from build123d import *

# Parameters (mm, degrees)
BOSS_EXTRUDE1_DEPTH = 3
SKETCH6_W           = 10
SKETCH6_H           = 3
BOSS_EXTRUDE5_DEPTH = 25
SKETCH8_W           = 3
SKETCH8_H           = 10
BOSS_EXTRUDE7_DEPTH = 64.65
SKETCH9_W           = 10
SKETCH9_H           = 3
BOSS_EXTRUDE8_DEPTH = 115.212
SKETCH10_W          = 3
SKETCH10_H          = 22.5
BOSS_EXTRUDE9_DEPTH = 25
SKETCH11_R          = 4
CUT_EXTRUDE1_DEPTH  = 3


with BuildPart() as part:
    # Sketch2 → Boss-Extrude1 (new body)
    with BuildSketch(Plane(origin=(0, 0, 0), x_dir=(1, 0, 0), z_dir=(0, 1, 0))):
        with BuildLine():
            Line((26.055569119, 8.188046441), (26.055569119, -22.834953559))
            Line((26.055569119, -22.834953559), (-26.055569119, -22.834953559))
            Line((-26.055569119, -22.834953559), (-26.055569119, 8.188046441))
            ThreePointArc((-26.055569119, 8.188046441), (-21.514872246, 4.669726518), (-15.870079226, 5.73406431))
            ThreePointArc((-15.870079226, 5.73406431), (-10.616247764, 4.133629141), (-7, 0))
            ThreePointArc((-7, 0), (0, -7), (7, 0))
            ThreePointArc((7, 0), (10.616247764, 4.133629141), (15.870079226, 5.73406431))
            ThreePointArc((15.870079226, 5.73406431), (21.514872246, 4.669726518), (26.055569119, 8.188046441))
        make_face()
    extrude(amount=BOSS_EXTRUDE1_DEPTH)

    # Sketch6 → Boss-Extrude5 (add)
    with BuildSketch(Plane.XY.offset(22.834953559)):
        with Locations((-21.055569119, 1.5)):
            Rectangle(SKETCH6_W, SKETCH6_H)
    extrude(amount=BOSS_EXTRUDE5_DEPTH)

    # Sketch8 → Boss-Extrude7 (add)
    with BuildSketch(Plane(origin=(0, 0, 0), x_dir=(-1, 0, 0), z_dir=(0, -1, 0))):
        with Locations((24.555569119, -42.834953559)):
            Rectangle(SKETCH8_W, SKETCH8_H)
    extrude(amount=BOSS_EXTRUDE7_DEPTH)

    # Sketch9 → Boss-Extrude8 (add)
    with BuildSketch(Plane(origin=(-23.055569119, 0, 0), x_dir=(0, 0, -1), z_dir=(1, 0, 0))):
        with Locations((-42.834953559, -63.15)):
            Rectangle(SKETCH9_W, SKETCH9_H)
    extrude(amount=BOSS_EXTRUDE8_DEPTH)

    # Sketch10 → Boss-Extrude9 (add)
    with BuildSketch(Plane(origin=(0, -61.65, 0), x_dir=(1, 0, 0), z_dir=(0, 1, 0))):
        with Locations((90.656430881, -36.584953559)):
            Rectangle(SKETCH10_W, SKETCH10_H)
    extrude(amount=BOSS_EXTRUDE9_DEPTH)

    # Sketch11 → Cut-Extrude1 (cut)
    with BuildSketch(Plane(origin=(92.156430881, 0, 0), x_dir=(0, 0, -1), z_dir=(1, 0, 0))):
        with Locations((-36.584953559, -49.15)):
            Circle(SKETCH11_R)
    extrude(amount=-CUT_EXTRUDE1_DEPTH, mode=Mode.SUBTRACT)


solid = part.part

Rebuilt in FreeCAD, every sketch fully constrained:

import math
import FreeCAD as App
import Part
import Sketcher
from FreeCAD import Vector
Q = App.Units.Quantity

doc = App.newDocument("Part")
params = doc.addObject("Spreadsheet::Sheet", "Params")
for row, (alias, value) in enumerate([
    ("sketch1_radius", "7 mm"),
    ("sketch1_radius2", "10 mm"),
    ("pad1_length", "3 mm"),
    ("sketch2_width", "10 mm"),
    ("sketch2_height", "3 mm"),
    ("pad2_length", "25 mm"),
    ("sketch3_width", "3 mm"),
    ("sketch3_height", "10 mm"),
    ("pad3_length", "64.65 mm"),
    ("sketch4_width", "3 mm"),
    ("sketch4_height", "10 mm"),
    ("pad4_length", "115.212 mm"),
    ("sketch5_width", "3 mm"),
    ("sketch5_height", "22.5 mm"),
    ("pad5_length", "25 mm"),
    ("sketch6_diameter", "8 mm"),
    ("pocket1_length", "3 mm"),
], start=1):
    params.set(f"A{row}", alias)
    params.set(f"B{row}", "=" + value)
    params.setAlias(f"B{row}", alias)

body = doc.addObject("PartDesign::Body", "Body")

# Sketch on XZ plane
sketch1 = doc.addObject("Sketcher::SketchObject", "Sketch")
body.addObject(sketch1)
sketch1.AttachmentSupport = (doc.XZ_Plane, [""])
sketch1.MapMode = "FlatFace"
sketch1.addGeometry([
    Part.LineSegment(Vector(26, 23, 0), Vector(26, -8, 0)),  # 0
    Part.ArcOfCircle(Part.Circle(Vector(20, -11, 0), Vector(0, 0, 1), 7), math.radians(28), math.radians(125)),  # 1
    Part.ArcOfCircle(Part.Circle(Vector(16, 4, 0), Vector(0, 0, 1), 10), math.radians(-155), math.radians(-91)),  # 2
    Part.ArcOfCircle(Part.Circle(Vector(0, 0, 0), Vector(0, 0, 1), 7), math.radians(0), math.radians(180)),  # 3
    Part.ArcOfCircle(Part.Circle(Vector(-16, 4, 0), Vector(0, 0, 1), 10), math.radians(-89), math.radians(-25)),  # 4
    Part.ArcOfCircle(Part.Circle(Vector(-20, -11, 0), Vector(0, 0, 1), 7), math.radians(55), math.radians(152)),  # 5
    Part.LineSegment(Vector(-26, -8, 0), Vector(-26, 23, 0)),  # 6
    Part.LineSegment(Vector(-26, 23, 0), Vector(26, 23, 0)),  # 7
], False)
sketch1.addConstraint([
    Sketcher.Constraint("Coincident", 0, 2, 1, 1),
    Sketcher.Constraint("Coincident", 1, 2, 2, 2),
    Sketcher.Constraint("Coincident", 2, 1, 3, 1),
    Sketcher.Constraint("Coincident", 3, 2, 4, 2),
    Sketcher.Constraint("Coincident", 4, 1, 5, 1),
    Sketcher.Constraint("Coincident", 5, 2, 6, 1),
    Sketcher.Constraint("Coincident", 6, 2, 7, 1),
    Sketcher.Constraint("Coincident", 7, 2, 0, 1),
    Sketcher.Constraint("Vertical", 0),
    Sketcher.Constraint("Vertical", 6),
    Sketcher.Constraint("Horizontal", 7),
    Sketcher.Constraint("Coincident", 3, 3, -1, 1),
    Sketcher.Constraint("Equal", 1, 3),
    Sketcher.Constraint("Equal", 2, 4),
    Sketcher.Constraint("Equal", 3, 5),
    Sketcher.Constraint("Symmetric", 2, 3, 4, 3, -2),
    Sketcher.Constraint("Symmetric", 1, 3, 5, 3, -2),
    Sketcher.Constraint("PointOnObject", 2, 1, -1),
    Sketcher.Constraint("Horizontal", 0, 2, 5, 2),
    Sketcher.Constraint("Radius", 1, Q("7 mm")),
    Sketcher.Constraint("Radius", 2, Q("10 mm")),
    Sketcher.Constraint("DistanceY", 0, 2, 0, 1, Q("31.023 mm")),
    Sketcher.Constraint("DistanceY", 1, 3, -1, 1, Q("11.475 mm")),
    Sketcher.Constraint("DistanceX", 7, 1, 7, 2, Q("52.111138 mm")),
    Sketcher.Constraint("DistanceX", -1, 1, 1, 2, Q("15.870079 mm")),
    Sketcher.Constraint("DistanceX", 4, 3, 1, 3, Q("35.92044 mm")),
])
sketch1.setExpression("Constraints[19]", "Params.sketch1_radius")
sketch1.setExpression("Constraints[20]", "Params.sketch1_radius2")
pad1 = doc.addObject("PartDesign::Pad", "Pad")
body.addObject(pad1)
pad1.Profile = sketch1
pad1.setExpression("Length", "Params.pad1_length")
pad1.Reversed = True

# Sketch on XY plane
sketch2 = doc.addObject("Sketcher::SketchObject", "Sketch001")
body.addObject(sketch2)
sketch2.AttachmentSupport = (doc.XY_Plane, [""])
sketch2.MapMode = "FlatFace"
sketch2.AttachmentOffset = App.Placement(Vector(0, 0, 22.834954), App.Rotation())
sketch2.addGeometry([
    Part.LineSegment(Vector(-26.1, 3, 0), Vector(-26.1, 0, 0)),
    Part.LineSegment(Vector(-26.1, 0, 0), Vector(-16.1, 0, 0)),
    Part.LineSegment(Vector(-16.1, 0, 0), Vector(-16.1, 3, 0)),
    Part.LineSegment(Vector(-16.1, 3, 0), Vector(-26.1, 3, 0)),
], False)
sketch2.addConstraint([
    Sketcher.Constraint("Coincident", 0, 2, 1, 1),
    Sketcher.Constraint("Coincident", 1, 2, 2, 1),
    Sketcher.Constraint("Coincident", 2, 2, 3, 1),
    Sketcher.Constraint("Coincident", 3, 2, 0, 1),
    Sketcher.Constraint("Vertical", 0),
    Sketcher.Constraint("Horizontal", 1),
    Sketcher.Constraint("Vertical", 2),
    Sketcher.Constraint("Horizontal", 3),
    Sketcher.Constraint("PointOnObject", 0, 2, -1),
    Sketcher.Constraint("DistanceX", 1, 1, 1, 2, Q("10 mm")),
    Sketcher.Constraint("DistanceY", 0, 2, 0, 1, Q("3 mm")),
    Sketcher.Constraint("DistanceX", 0, 2, -1, 1, Q("26.055569 mm")),
])
sketch2.setExpression("Constraints[9]", "Params.sketch2_width")
sketch2.setExpression("Constraints[10]", "Params.sketch2_height")
pad2 = doc.addObject("PartDesign::Pad", "Pad001")
body.addObject(pad2)
pad2.Profile = sketch2
pad2.setExpression("Length", "Params.pad2_length")

# Sketch on XZ plane
sketch3 = doc.addObject("Sketcher::SketchObject", "Sketch002")
body.addObject(sketch3)
sketch3.AttachmentSupport = (doc.XZ_Plane, [""])
sketch3.MapMode = "FlatFace"
sketch3.addGeometry([
    Part.LineSegment(Vector(-23.1, 37.8, 0), Vector(-23.1, 47.8, 0)),
    Part.LineSegment(Vector(-23.1, 47.8, 0), Vector(-26.1, 47.8, 0)),
    Part.LineSegment(Vector(-26.1, 47.8, 0), Vector(-26.1, 37.8, 0)),
    Part.LineSegment(Vector(-26.1, 37.8, 0), Vector(-23.1, 37.8, 0)),
], False)
sketch3.addConstraint([
    Sketcher.Constraint("Coincident", 0, 2, 1, 1),
    Sketcher.Constraint("Coincident", 1, 2, 2, 1),
    Sketcher.Constraint("Coincident", 2, 2, 3, 1),
    Sketcher.Constraint("Coincident", 3, 2, 0, 1),
    Sketcher.Constraint("Vertical", 0),
    Sketcher.Constraint("Horizontal", 1),
    Sketcher.Constraint("Vertical", 2),
    Sketcher.Constraint("Horizontal", 3),
    Sketcher.Constraint("DistanceX", 1, 2, 1, 1, Q("3 mm")),
    Sketcher.Constraint("DistanceY", 0, 1, 0, 2, Q("10 mm")),
    Sketcher.Constraint("DistanceX", 0, 2, -1, 1, Q("23.055569 mm")),
    Sketcher.Constraint("DistanceY", -1, 1, 0, 2, Q("47.834954 mm")),
])
sketch3.setExpression("Constraints[8]", "Params.sketch3_width")
sketch3.setExpression("Constraints[9]", "Params.sketch3_height")
pad3 = doc.addObject("PartDesign::Pad", "Pad002")
body.addObject(pad3)
pad3.Profile = sketch3
pad3.setExpression("Length", "Params.pad3_length")

# Sketch on YZ plane
sketch4 = doc.addObject("Sketcher::SketchObject", "Sketch003")
body.addObject(sketch4)
sketch4.AttachmentSupport = (doc.YZ_Plane, [""])
sketch4.MapMode = "FlatFace"
sketch4.AttachmentOffset = App.Placement(Vector(0, 0, -23.055569), App.Rotation())
sketch4.addGeometry([
    Part.LineSegment(Vector(-61.6, 47.8, 0), Vector(-64.7, 47.8, 0)),
    Part.LineSegment(Vector(-64.7, 47.8, 0), Vector(-64.7, 37.8, 0)),
    Part.LineSegment(Vector(-64.7, 37.8, 0), Vector(-61.6, 37.8, 0)),
    Part.LineSegment(Vector(-61.6, 37.8, 0), Vector(-61.6, 47.8, 0)),
], False)
sketch4.addConstraint([
    Sketcher.Constraint("Coincident", 0, 2, 1, 1),
    Sketcher.Constraint("Coincident", 1, 2, 2, 1),
    Sketcher.Constraint("Coincident", 2, 2, 3, 1),
    Sketcher.Constraint("Coincident", 3, 2, 0, 1),
    Sketcher.Constraint("Horizontal", 0),
    Sketcher.Constraint("Vertical", 1),
    Sketcher.Constraint("Horizontal", 2),
    Sketcher.Constraint("Vertical", 3),
    Sketcher.Constraint("DistanceX", 0, 2, 0, 1, Q("3 mm")),
    Sketcher.Constraint("DistanceY", 1, 2, 1, 1, Q("10 mm")),
    Sketcher.Constraint("DistanceX", 0, 2, -1, 1, Q("64.65 mm")),
    Sketcher.Constraint("DistanceY", -1, 1, 0, 2, Q("47.834954 mm")),
])
sketch4.setExpression("Constraints[8]", "Params.sketch4_width")
sketch4.setExpression("Constraints[9]", "Params.sketch4_height")
pad4 = doc.addObject("PartDesign::Pad", "Pad003")
body.addObject(pad4)
pad4.Profile = sketch4
pad4.setExpression("Length", "Params.pad4_length")

# Sketch on XZ plane
sketch5 = doc.addObject("Sketcher::SketchObject", "Sketch004")
body.addObject(sketch5)
sketch5.AttachmentSupport = (doc.XZ_Plane, [""])
sketch5.MapMode = "FlatFace"
sketch5.AttachmentOffset = App.Placement(Vector(0, 0, 61.65), App.Rotation())
sketch5.addGeometry([
    Part.LineSegment(Vector(89.2, 25.3, 0), Vector(89.2, 47.8, 0)),
    Part.LineSegment(Vector(89.2, 47.8, 0), Vector(92.2, 47.8, 0)),
    Part.LineSegment(Vector(92.2, 47.8, 0), Vector(92.2, 25.3, 0)),
    Part.LineSegment(Vector(92.2, 25.3, 0), Vector(89.2, 25.3, 0)),
], False)
sketch5.addConstraint([
    Sketcher.Constraint("Coincident", 0, 2, 1, 1),
    Sketcher.Constraint("Coincident", 1, 2, 2, 1),
    Sketcher.Constraint("Coincident", 2, 2, 3, 1),
    Sketcher.Constraint("Coincident", 3, 2, 0, 1),
    Sketcher.Constraint("Vertical", 0),
    Sketcher.Constraint("Horizontal", 1),
    Sketcher.Constraint("Vertical", 2),
    Sketcher.Constraint("Horizontal", 3),
    Sketcher.Constraint("DistanceX", 1, 1, 1, 2, Q("3 mm")),
    Sketcher.Constraint("DistanceY", 0, 1, 0, 2, Q("22.5 mm")),
    Sketcher.Constraint("DistanceX", -1, 1, 0, 2, Q("89.156431 mm")),
    Sketcher.Constraint("DistanceY", -1, 1, 0, 2, Q("47.834954 mm")),
])
sketch5.setExpression("Constraints[8]", "Params.sketch5_width")
sketch5.setExpression("Constraints[9]", "Params.sketch5_height")
pad5 = doc.addObject("PartDesign::Pad", "Pad004")
body.addObject(pad5)
pad5.Profile = sketch5
pad5.setExpression("Length", "Params.pad5_length")
pad5.Reversed = True

# Sketch on YZ plane
sketch6 = doc.addObject("Sketcher::SketchObject", "Sketch005")
body.addObject(sketch6)
sketch6.AttachmentSupport = (doc.YZ_Plane, [""])
sketch6.MapMode = "FlatFace"
sketch6.AttachmentOffset = App.Placement(Vector(0, 0, 92.156431), App.Rotation())
sketch6.addGeometry(Part.Circle(Vector(-49.1, 36.6, 0), Vector(0, 0, 1), 4), False)
sketch6.addConstraint([
    Sketcher.Constraint("Diameter", 0, Q("8 mm")),
    Sketcher.Constraint("DistanceX", 0, 3, -1, 1, Q("49.15 mm")),
    Sketcher.Constraint("DistanceY", -1, 1, 0, 3, Q("36.584954 mm")),
])
sketch6.setExpression("Constraints[0]", "Params.sketch6_diameter")
pocket1 = doc.addObject("PartDesign::Pocket", "Pocket")
body.addObject(pocket1)
pocket1.Profile = sketch6
pocket1.setExpression("Length", "Params.pocket1_length")

doc.recompute()
